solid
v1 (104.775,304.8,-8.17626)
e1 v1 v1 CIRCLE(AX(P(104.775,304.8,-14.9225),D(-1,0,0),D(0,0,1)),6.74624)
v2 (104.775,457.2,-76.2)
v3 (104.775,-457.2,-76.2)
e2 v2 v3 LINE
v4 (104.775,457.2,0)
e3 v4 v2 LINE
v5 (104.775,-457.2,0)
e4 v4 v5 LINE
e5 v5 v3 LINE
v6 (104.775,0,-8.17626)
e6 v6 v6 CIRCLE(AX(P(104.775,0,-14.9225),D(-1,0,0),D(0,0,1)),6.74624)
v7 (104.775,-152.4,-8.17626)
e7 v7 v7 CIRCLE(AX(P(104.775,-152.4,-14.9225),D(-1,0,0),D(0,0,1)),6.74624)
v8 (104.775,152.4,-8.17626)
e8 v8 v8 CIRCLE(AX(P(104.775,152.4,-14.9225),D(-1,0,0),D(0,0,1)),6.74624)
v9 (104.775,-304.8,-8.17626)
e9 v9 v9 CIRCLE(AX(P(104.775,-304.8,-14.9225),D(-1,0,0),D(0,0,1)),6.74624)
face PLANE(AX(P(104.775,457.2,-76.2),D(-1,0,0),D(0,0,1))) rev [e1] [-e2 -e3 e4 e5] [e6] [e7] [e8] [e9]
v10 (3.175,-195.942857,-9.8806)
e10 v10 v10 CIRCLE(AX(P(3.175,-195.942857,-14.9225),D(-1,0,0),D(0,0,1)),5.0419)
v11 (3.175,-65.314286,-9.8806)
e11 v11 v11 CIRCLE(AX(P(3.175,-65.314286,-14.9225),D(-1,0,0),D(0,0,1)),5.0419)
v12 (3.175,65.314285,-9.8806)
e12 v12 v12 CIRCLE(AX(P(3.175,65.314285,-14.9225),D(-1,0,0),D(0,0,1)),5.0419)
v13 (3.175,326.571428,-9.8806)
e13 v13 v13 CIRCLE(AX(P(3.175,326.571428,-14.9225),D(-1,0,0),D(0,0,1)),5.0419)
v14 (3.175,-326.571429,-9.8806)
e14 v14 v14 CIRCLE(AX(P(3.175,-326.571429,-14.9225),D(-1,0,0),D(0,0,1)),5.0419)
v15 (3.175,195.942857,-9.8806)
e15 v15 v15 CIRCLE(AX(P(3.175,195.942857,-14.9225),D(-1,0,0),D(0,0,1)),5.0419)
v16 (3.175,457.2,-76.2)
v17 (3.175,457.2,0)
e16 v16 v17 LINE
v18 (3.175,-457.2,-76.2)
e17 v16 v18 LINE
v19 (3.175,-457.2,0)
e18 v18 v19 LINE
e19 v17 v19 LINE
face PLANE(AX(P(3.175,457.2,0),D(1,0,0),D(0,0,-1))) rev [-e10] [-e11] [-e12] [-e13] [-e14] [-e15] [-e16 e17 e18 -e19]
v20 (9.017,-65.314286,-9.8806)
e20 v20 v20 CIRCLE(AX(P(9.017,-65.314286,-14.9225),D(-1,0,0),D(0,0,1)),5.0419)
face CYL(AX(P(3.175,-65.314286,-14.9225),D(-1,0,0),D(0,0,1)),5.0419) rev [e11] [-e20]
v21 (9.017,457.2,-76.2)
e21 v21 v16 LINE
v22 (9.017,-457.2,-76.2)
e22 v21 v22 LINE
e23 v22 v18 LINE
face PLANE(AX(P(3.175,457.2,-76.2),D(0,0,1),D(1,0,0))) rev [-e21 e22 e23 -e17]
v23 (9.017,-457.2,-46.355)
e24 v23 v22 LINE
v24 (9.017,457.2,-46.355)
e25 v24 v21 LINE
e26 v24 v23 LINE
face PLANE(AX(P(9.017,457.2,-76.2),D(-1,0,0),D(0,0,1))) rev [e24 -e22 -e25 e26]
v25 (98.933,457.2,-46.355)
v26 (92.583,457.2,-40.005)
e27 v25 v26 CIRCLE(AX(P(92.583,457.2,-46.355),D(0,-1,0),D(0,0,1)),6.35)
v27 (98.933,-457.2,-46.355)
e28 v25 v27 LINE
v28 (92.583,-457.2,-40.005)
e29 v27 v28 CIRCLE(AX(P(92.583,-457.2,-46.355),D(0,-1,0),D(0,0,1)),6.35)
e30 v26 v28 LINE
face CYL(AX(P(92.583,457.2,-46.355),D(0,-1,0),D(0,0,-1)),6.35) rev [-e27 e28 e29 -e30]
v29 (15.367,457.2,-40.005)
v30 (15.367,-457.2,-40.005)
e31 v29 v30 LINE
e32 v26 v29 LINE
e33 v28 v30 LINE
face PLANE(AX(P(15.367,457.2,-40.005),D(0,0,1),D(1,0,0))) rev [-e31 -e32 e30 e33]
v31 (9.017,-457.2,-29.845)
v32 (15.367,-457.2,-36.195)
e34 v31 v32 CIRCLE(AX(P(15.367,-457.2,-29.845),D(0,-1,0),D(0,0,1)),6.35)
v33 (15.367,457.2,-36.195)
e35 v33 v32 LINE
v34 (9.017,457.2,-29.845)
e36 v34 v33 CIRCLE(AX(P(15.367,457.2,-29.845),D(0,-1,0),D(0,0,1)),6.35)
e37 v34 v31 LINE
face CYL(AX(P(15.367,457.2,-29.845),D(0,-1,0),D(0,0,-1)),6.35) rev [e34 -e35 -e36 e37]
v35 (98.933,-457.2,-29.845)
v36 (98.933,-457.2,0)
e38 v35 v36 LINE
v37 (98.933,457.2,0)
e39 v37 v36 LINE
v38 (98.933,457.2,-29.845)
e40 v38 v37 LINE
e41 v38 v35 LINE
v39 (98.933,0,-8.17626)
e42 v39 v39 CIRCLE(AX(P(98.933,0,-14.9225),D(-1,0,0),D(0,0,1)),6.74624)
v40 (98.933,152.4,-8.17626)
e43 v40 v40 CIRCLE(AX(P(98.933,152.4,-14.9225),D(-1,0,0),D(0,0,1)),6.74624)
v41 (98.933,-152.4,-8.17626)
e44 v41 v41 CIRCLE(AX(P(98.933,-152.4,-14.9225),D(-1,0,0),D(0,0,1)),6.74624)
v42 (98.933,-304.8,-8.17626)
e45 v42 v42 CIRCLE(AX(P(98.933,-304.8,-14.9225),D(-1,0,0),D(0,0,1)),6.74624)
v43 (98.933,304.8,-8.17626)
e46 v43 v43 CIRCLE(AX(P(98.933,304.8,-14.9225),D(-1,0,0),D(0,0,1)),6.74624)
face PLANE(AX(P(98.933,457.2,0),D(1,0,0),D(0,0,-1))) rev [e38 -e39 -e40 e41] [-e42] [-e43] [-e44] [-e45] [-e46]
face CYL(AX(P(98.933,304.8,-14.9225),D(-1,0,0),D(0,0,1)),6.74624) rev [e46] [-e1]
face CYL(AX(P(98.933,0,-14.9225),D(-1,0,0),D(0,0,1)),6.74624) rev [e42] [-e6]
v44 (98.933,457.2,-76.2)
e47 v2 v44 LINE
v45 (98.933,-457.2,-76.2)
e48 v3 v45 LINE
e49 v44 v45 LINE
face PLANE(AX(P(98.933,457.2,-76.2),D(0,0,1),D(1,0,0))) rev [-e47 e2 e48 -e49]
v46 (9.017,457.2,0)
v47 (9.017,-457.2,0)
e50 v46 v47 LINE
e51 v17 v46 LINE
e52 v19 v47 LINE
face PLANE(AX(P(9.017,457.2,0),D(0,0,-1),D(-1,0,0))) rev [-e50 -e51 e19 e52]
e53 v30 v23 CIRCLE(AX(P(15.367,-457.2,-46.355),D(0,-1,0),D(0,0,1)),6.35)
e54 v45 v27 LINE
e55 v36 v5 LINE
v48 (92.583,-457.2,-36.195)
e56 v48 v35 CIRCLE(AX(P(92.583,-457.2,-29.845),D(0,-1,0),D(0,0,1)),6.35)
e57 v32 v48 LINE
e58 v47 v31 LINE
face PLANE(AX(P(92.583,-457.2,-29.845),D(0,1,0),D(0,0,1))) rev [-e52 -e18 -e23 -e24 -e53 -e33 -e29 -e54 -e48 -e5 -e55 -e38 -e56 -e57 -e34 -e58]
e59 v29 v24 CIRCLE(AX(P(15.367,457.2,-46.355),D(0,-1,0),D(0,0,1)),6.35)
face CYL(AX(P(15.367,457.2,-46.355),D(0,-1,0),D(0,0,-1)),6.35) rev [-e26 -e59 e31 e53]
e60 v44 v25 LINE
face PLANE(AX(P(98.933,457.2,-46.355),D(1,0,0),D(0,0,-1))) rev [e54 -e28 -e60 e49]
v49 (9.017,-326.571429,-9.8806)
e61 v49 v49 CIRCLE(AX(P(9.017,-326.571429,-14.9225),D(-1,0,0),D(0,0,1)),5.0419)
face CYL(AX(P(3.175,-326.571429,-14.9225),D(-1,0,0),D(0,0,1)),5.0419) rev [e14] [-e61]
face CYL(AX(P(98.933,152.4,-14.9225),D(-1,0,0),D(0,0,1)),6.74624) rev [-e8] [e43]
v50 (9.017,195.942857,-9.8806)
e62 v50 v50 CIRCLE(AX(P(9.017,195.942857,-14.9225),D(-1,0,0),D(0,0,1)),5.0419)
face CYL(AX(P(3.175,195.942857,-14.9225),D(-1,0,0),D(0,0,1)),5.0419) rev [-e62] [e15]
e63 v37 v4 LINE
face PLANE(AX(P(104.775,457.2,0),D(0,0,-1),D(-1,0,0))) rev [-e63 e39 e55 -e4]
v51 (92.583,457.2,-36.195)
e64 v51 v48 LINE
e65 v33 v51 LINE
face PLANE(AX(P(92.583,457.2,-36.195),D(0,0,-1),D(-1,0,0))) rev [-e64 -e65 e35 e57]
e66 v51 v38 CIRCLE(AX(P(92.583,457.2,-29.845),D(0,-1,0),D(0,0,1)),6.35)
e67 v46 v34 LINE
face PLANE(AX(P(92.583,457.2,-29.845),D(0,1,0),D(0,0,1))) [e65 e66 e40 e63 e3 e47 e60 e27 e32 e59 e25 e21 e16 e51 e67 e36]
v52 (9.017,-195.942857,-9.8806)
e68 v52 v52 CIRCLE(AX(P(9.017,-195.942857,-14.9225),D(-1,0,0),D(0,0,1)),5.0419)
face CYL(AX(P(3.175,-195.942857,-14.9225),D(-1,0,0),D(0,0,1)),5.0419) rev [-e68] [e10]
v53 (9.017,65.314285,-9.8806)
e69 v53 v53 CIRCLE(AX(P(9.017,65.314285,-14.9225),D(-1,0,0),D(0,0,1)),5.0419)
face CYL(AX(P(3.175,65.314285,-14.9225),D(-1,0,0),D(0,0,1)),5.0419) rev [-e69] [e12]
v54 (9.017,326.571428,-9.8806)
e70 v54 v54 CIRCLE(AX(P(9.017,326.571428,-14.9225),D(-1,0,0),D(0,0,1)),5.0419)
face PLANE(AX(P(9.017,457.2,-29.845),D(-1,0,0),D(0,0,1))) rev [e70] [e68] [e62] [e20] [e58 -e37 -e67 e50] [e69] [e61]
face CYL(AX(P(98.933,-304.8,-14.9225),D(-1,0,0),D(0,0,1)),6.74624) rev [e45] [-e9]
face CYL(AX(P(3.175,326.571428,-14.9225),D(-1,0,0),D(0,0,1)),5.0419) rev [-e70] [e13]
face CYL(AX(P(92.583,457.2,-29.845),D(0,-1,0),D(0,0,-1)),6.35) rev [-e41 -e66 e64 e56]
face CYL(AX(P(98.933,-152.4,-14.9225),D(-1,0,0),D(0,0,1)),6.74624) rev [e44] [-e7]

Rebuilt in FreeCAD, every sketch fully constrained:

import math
import FreeCAD as App
import Part
import Sketcher
from FreeCAD import Vector
Q = App.Units.Quantity

doc = App.newDocument("Part")
body = doc.addObject("PartDesign::Body", "Body")

sketch1 = body.newObject("Sketcher::SketchObject", "Sketch")
sketch1.AttachmentSupport = (doc.getObject("XZ_Plane"), [""])
sketch1.MapMode = "FlatFace"
sketch1.AttachmentOffset = App.Placement(Vector(0, 0, 18 * 25.4), App.Rotation())
sketch1.addGeometry([
    Part.LineSegment(Vector(98.933, 0, 0), Vector(104.775, 0, 0)),
    Part.LineSegment(Vector(104.775, 0, 0), Vector(104.775, -76.2, 0)),
    Part.LineSegment(Vector(104.775, -76.2, 0), Vector(98.933, -76.2, 0)),
    Part.LineSegment(Vector(98.933, -76.2, 0), Vector(98.933, -46.355, 0)),
    Part.ArcOfCircle(Part.Circle(Vector(92.583, -46.355, 0), Vector(0, 0, 1), 6.35), math.radians(0), math.radians(90)),
    Part.LineSegment(Vector(92.583, -40.005, 0), Vector(15.367, -40.005, 0)),
    Part.ArcOfCircle(Part.Circle(Vector(15.367, -46.355, 0), Vector(0, 0, 1), 6.35), math.radians(90), math.radians(180)),
    Part.LineSegment(Vector(9.017, -46.355, 0), Vector(9.017, -76.2, 0)),
    Part.LineSegment(Vector(9.017, -76.2, 0), Vector(3.175, -76.2, 0)),
    Part.LineSegment(Vector(3.175, -76.2, 0), Vector(3.175, 0, 0)),
    Part.LineSegment(Vector(3.175, 0, 0), Vector(9.017, 0, 0)),
    Part.LineSegment(Vector(9.017, 0, 0), Vector(9.017, -29.845, 0)),
    Part.ArcOfCircle(Part.Circle(Vector(15.367, -29.845, 0), Vector(0, 0, 1), 6.35), math.radians(180), math.radians(270)),
    Part.LineSegment(Vector(15.367, -36.195, 0), Vector(92.583, -36.195, 0)),
    Part.ArcOfCircle(Part.Circle(Vector(92.583, -29.845, 0), Vector(0, 0, 1), 6.35), math.radians(-90), math.radians(0)),
    Part.LineSegment(Vector(98.933, -29.845, 0), Vector(98.933, 0, 0)),
], False)
sketch1.addConstraint([
    Sketcher.Constraint("Coincident", 0, 2, 1, 1),
    Sketcher.Constraint("Coincident", 1, 2, 2, 1),
    Sketcher.Constraint("Coincident", 2, 2, 3, 1),
    Sketcher.Constraint("Tangent", 3, 2, 4, 1),
    Sketcher.Constraint("Tangent", 4, 2, 5, 1),
    Sketcher.Constraint("Tangent", 5, 2, 6, 1),
    Sketcher.Constraint("Tangent", 6, 2, 7, 1),
    Sketcher.Constraint("Coincident", 7, 2, 8, 1),
    Sketcher.Constraint("Coincident", 8, 2, 9, 1),
    Sketcher.Constraint("Coincident", 9, 2, 10, 1),
    Sketcher.Constraint("Coincident", 10, 2, 11, 1),
    Sketcher.Constraint("Tangent", 11, 2, 12, 1),
    Sketcher.Constraint("Tangent", 12, 2, 13, 1),
    Sketcher.Constraint("Tangent", 13, 2, 14, 1),
    Sketcher.Constraint("Tangent", 14, 2, 15, 1),
    Sketcher.Constraint("Coincident", 15, 2, 0, 1),
    Sketcher.Constraint("Horizontal", 0),
    Sketcher.Constraint("Vertical", 1),
    Sketcher.Constraint("Horizontal", 2),
    Sketcher.Constraint("Vertical", 3),
    Sketcher.Constraint("Horizontal", 5),
    Sketcher.Constraint("Vertical", 7),
    Sketcher.Constraint("Horizontal", 8),
    Sketcher.Constraint("Vertical", 9),
    Sketcher.Constraint("Horizontal", 10),
    Sketcher.Constraint("Vertical", 11),
    Sketcher.Constraint("Horizontal", 13),
    Sketcher.Constraint("Vertical", 15),
    Sketcher.Constraint("Equal", 4, 6),
    Sketcher.Constraint("Equal", 6, 12),
    Sketcher.Constraint("Equal", 12, 14),
    Sketcher.Constraint("PointOnObject", 0, 2, -1),
    Sketcher.Constraint("PointOnObject", 9, 2, -1),
    Sketcher.Constraint("Horizontal", 2, 2, 7, 2),
    Sketcher.Constraint("Vertical", 6, 3, 12, 3),
    Sketcher.Constraint("Vertical", 4, 3, 14, 3),
    Sketcher.Constraint("Equal", 2, 8),
    Sketcher.Constraint("Equal", 7, 11),
    Sketcher.Constraint("DistanceY", 1, 2, 1, 1, Q("3 in")),
    Sketcher.Constraint("Radius", 4, Q("0.25 in")),
    Sketcher.Constraint("DistanceX", 0, 1, 0, 2, Q("0.23 in")),
    Sketcher.Constraint("DistanceX", 5, 2, 5, 1, Q("3.04 in")),
    Sketcher.Constraint("DistanceY", 4, 2, 14, 3, Q("0.4 in")),
    Sketcher.Constraint("DistanceX", -1, 1, 4, 3, Q("3.645 in")),
])
pad1 = body.newObject("PartDesign::Pad", "Pad")
pad1.Profile = sketch1
pad1.Length = Q("36 in")
pad1.Reversed = True

sketch2 = body.newObject("Sketcher::SketchObject", "Sketch001")
sketch2.AttachmentSupport = (doc.getObject("YZ_Plane"), [""])
sketch2.MapMode = "FlatFace"
sketch2.AttachmentOffset = App.Placement(Vector(0, 0, 0.125 * 25.4), App.Rotation())
sketch2.addGeometry(Part.Circle(Vector(326.571428, -14.9225, 0), Vector(0, 0, 1), 5.0419), False)
sketch2.addConstraint([
    Sketcher.Constraint("Diameter", 0, Q("0.397 in")),
    Sketcher.Constraint("DistanceY", 0, 3, -1, 1, Q("0.5875 in")),
    Sketcher.Constraint("DistanceX", -1, 1, 0, 3, 326.571428),
])
pocket1 = body.newObject("PartDesign::Pocket", "Pocket")
pocket1.Profile = sketch2
pocket1.Type = "UpToFirst"
pocket1.Reversed = True

sketch3 = body.newObject("Sketcher::SketchObject", "Sketch002")
sketch3.AttachmentSupport = (doc.getObject("YZ_Plane"), [""])
sketch3.MapMode = "FlatFace"
sketch3.AttachmentOffset = App.Placement(Vector(0, 0, 0.125 * 25.4), App.Rotation())
sketch3.addGeometry(Part.Circle(Vector(-326.571429, -14.9225, 0), Vector(0, 0, 1), 5.0419), False)
sketch3.addConstraint([
    Sketcher.Constraint("Diameter", 0, Q("0.397 in")),
    Sketcher.Constraint("DistanceY", 0, 3, -1, 1, Q("0.5875 in")),
    Sketcher.Constraint("DistanceX", 0, 3, -1, 1, 326.571429),
])
pocket2 = body.newObject("PartDesign::Pocket", "Pocket001")
pocket2.Profile = sketch3
pocket2.Type = "UpToFirst"
pocket2.Reversed = True

sketch4 = body.newObject("Sketcher::SketchObject", "Sketch003")
sketch4.AttachmentSupport = (doc.getObject("YZ_Plane"), [""])
sketch4.MapMode = "FlatFace"
sketch4.AttachmentOffset = App.Placement(Vector(0, 0, 0.125 * 25.4), App.Rotation())
sketch4.addGeometry(Part.Circle(Vector(-195.942857, -14.9225, 0), Vector(0, 0, 1), 5.0419), False)
sketch4.addConstraint([
    Sketcher.Constraint("Diameter", 0, Q("0.397 in")),
    Sketcher.Constraint("DistanceY", 0, 3, -1, 1, Q("0.5875 in")),
    Sketcher.Constraint("DistanceX", 0, 3, -1, 1, 195.942857),
])
pocket3 = body.newObject("PartDesign::Pocket", "Pocket002")
pocket3.Profile = sketch4
pocket3.Type = "UpToFirst"
pocket3.Reversed = True

sketch5 = body.newObject("Sketcher::SketchObject", "Sketch004")
sketch5.AttachmentSupport = (doc.getObject("YZ_Plane"), [""])
sketch5.MapMode = "FlatFace"
sketch5.AttachmentOffset = App.Placement(Vector(0, 0, 0.125 * 25.4), App.Rotation())
sketch5.addGeometry(Part.Circle(Vector(-65.314286, -14.9225, 0), Vector(0, 0, 1), 5.0419), False)
sketch5.addConstraint([
    Sketcher.Constraint("Diameter", 0, Q("0.397 in")),
    Sketcher.Constraint("DistanceY", 0, 3, -1, 1, Q("0.5875 in")),
    Sketcher.Constraint("DistanceX", 0, 3, -1, 1, 65.314286),
])
pocket4 = body.newObject("PartDesign::Pocket", "Pocket003")
pocket4.Profile = sketch5
pocket4.Type = "UpToFirst"
pocket4.Reversed = True

sketch6 = body.newObject("Sketcher::SketchObject", "Sketch005")
sketch6.AttachmentSupport = (doc.getObject("YZ_Plane"), [""])
sketch6.MapMode = "FlatFace"
sketch6.AttachmentOffset = App.Placement(Vector(0, 0, 0.125 * 25.4), App.Rotation())
sketch6.addGeometry(Part.Circle(Vector(65.314285, -14.9225, 0), Vector(0, 0, 1), 5.0419), False)
sketch6.addConstraint([
    Sketcher.Constraint("Diameter", 0, Q("0.397 in")),
    Sketcher.Constraint("DistanceY", 0, 3, -1, 1, Q("0.5875 in")),
    Sketcher.Constraint("DistanceX", -1, 1, 0, 3, 65.314285),
])
pocket5 = body.newObject("PartDesign::Pocket", "Pocket004")
pocket5.Profile = sketch6
pocket5.Type = "UpToFirst"
pocket5.Reversed = True

sketch7 = body.newObject("Sketcher::SketchObject", "Sketch006")
sketch7.AttachmentSupport = (doc.getObject("YZ_Plane"), [""])
sketch7.MapMode = "FlatFace"
sketch7.AttachmentOffset = App.Placement(Vector(0, 0, 0.125 * 25.4), App.Rotation())
sketch7.addGeometry(Part.Circle(Vector(195.942857, -14.9225, 0), Vector(0, 0, 1), 5.0419), False)
sketch7.addConstraint([
    Sketcher.Constraint("Diameter", 0, Q("0.397 in")),
    Sketcher.Constraint("DistanceY", 0, 3, -1, 1, Q("0.5875 in")),
    Sketcher.Constraint("DistanceX", -1, 1, 0, 3, 195.942857),
])
pocket6 = body.newObject("PartDesign::Pocket", "Pocket005")
pocket6.Profile = sketch7
pocket6.Type = "UpToFirst"
pocket6.Reversed = True

sketch8 = body.newObject("Sketcher::SketchObject", "Sketch007")
sketch8.AttachmentSupport = (doc.getObject("YZ_Plane"), [""])
sketch8.MapMode = "FlatFace"
sketch8.AttachmentOffset = App.Placement(Vector(0, 0, 3.895 * 25.4), App.Rotation())
sketch8.addGeometry([
    Part.Circle(Vector(304.8, -14.9225, 0), Vector(0, 0, 1), 6.74624),
    Part.Circle(Vector(-304.8, -14.9225, 0), Vector(0, 0, 1), 6.74624),
    Part.Circle(Vector(-152.4, -14.9225, 0), Vector(0, 0, 1), 6.74624),
    Part.Circle(Vector(0, -14.9225, 0), Vector(0, 0, 1), 6.74624),
    Part.Circle(Vector(152.4, -14.9225, 0), Vector(0, 0, 1), 6.74624),
], False)
sketch8.addConstraint([
    Sketcher.Constraint("Equal", 0, 1),
    Sketcher.Constraint("Equal", 1, 2),
    Sketcher.Constraint("Equal", 2, 3),
    Sketcher.Constraint("Equal", 3, 4),
    Sketcher.Constraint("Symmetric", 0, 3, 1, 3, -2),
    Sketcher.Constraint("Symmetric", 2, 3, 4, 3, -2),
    Sketcher.Constraint("PointOnObject", 3, 3, -2),
    Sketcher.Constraint("Horizontal", 1, 3, 2, 3),
    Sketcher.Constraint("Horizontal", 2, 3, 3, 3),
    Sketcher.Constraint("DistanceX", -1, 1, 0, 3, Q("12 in")),
    Sketcher.Constraint("DistanceX", 2, 3, -1, 1, Q("6 in")),
    Sketcher.Constraint("Diameter", 0, Q("0.5312 in")),
    Sketcher.Constraint("DistanceY", 0, 3, -1, 1, Q("0.5875 in")),
])
doc.recompute()
hole = body.newObject("PartDesign::Hole", "Hole")
hole.Profile = sketch8
hole.ThreadType = "None"
hole.Diameter = Q("0.5312 in")
hole.DepthType = "Dimension"
hole.Depth = Q("0.23 in")
hole.DrillPoint = "Flat"
hole.Reversed = True

doc.recompute()
